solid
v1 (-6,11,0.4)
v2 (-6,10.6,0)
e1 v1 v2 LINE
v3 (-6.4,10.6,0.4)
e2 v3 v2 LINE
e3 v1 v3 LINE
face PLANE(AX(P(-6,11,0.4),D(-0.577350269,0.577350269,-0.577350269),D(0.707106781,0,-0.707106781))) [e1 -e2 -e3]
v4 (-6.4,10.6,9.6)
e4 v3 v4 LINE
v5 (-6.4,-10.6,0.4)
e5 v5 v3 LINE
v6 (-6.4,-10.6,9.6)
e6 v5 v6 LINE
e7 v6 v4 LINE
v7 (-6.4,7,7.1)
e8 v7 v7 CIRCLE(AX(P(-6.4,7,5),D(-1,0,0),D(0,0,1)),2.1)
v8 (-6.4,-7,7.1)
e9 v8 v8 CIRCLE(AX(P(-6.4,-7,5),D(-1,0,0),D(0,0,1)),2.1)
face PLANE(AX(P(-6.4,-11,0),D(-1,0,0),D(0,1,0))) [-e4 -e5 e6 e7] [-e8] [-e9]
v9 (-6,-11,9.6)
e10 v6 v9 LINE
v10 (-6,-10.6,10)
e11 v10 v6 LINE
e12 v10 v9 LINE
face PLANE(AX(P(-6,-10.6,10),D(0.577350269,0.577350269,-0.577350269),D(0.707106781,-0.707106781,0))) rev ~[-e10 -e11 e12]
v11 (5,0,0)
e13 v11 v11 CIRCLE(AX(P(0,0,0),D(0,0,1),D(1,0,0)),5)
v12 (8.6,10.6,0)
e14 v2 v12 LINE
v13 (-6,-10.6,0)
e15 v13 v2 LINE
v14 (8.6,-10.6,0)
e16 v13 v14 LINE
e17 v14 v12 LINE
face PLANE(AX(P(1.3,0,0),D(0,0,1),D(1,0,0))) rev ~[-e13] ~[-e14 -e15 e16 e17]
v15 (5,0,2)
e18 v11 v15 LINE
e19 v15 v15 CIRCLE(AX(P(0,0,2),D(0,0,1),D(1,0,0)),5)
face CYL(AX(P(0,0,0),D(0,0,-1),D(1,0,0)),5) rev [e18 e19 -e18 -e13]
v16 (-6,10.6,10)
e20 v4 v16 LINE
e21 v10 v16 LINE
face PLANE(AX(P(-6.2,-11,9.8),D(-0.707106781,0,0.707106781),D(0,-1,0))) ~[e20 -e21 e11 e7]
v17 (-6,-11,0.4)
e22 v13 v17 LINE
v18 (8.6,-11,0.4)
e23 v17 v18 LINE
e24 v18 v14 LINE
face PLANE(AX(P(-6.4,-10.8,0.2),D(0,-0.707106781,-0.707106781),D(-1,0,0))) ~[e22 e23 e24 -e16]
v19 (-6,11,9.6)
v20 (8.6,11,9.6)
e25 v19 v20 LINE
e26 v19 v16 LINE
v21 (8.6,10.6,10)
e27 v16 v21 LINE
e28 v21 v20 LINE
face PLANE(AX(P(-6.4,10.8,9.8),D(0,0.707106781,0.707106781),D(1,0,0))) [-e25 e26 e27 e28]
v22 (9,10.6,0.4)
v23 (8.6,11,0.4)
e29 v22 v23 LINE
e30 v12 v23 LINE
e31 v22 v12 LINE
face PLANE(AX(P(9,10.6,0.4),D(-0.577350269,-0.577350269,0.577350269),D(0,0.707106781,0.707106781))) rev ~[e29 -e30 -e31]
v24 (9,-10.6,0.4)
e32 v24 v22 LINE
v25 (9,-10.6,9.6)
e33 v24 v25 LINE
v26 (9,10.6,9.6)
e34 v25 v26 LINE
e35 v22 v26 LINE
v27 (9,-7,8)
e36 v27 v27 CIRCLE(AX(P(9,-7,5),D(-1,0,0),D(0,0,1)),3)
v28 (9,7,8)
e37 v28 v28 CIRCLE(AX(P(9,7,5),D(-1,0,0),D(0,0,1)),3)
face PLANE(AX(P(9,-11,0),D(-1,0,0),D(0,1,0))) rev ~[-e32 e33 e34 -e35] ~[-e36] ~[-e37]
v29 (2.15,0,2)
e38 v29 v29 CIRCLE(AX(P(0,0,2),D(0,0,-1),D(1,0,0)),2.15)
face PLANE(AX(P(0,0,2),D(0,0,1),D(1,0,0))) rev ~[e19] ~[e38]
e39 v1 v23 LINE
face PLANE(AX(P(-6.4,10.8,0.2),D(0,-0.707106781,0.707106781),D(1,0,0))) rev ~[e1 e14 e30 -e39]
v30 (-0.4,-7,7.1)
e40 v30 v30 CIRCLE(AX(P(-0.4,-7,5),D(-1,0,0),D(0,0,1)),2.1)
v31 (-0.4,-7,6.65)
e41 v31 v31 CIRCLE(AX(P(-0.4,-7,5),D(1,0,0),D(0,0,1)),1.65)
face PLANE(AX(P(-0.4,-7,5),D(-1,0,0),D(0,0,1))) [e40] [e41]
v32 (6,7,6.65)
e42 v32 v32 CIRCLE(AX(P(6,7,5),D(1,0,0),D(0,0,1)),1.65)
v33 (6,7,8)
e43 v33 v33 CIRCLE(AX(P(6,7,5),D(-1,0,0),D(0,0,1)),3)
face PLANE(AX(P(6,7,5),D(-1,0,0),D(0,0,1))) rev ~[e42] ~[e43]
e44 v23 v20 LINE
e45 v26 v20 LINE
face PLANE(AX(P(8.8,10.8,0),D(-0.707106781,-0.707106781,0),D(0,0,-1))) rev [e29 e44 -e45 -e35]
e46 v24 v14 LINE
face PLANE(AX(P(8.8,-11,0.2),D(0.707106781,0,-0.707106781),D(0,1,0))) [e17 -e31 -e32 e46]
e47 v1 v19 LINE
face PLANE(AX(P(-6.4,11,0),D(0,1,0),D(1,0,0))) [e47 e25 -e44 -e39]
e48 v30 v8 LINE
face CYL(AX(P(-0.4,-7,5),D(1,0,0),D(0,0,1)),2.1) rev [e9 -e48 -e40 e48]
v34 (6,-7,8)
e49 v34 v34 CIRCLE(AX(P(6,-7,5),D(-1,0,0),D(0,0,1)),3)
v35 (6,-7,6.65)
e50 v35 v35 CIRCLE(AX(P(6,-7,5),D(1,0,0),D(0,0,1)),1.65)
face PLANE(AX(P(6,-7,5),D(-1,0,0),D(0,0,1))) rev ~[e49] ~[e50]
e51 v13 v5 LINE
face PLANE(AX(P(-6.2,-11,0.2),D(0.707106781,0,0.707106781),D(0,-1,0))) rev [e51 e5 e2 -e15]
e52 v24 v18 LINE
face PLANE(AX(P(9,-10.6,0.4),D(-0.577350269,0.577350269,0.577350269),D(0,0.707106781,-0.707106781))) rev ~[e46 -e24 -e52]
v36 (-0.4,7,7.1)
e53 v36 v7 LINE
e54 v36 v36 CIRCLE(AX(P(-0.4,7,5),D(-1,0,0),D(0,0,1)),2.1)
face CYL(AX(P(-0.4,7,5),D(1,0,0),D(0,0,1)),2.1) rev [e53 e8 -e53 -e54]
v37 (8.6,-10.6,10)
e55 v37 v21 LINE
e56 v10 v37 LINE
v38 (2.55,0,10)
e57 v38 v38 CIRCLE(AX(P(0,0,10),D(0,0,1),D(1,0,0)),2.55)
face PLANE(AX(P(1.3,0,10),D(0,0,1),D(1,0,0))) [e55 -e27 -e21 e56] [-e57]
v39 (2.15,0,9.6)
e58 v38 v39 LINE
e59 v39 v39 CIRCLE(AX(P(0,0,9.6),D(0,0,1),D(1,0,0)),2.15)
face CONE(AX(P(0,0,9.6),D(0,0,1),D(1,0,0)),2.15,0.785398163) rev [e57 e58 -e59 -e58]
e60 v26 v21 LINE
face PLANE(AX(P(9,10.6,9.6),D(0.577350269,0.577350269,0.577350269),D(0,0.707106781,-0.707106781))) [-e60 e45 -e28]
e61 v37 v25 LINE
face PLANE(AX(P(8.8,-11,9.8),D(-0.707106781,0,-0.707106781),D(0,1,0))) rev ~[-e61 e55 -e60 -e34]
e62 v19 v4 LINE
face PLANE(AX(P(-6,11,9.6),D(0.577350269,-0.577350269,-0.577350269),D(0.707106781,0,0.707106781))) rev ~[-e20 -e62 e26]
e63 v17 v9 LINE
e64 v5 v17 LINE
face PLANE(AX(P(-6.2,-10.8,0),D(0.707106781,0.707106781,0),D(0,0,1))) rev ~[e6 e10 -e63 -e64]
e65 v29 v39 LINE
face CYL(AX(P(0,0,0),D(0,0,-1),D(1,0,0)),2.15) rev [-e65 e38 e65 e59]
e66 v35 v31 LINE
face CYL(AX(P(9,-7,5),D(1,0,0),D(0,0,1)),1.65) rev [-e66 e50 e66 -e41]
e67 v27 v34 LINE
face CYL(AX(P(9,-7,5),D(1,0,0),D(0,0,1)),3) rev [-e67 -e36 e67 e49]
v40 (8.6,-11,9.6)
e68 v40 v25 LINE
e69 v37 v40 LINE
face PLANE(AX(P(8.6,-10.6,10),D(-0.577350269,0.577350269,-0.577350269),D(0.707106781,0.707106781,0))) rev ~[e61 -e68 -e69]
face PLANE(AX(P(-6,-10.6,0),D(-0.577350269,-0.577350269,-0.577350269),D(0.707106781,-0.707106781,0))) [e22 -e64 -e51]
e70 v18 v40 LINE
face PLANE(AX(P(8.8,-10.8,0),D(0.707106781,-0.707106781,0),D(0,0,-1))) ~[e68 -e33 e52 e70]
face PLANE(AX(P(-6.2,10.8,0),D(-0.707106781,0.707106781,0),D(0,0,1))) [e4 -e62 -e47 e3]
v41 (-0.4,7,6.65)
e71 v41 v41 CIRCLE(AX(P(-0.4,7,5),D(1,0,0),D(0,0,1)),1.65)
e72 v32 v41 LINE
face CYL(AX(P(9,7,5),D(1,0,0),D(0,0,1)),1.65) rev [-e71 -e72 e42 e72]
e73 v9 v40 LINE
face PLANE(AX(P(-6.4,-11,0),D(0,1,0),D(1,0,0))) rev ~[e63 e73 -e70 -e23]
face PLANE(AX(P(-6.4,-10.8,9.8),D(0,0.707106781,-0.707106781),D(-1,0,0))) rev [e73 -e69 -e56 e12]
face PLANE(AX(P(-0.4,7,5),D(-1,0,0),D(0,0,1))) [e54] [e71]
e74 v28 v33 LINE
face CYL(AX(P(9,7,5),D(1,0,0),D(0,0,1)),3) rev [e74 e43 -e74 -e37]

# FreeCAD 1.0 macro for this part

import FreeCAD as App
import Part
import Sketcher

V = App.Vector
Q = App.Units.Quantity


def edges_at(feature, points):
    """Names of the edges that pass closest to the given points."""
    edges = feature.Shape.Edges
    near = lambda p: min(range(len(edges)), key=lambda i: edges[i].distToShape(Part.Vertex(*p))[0])
    return sorted({f"Edge{near(p) + 1}" for p in points})


def add_polygon(sketch, points):
    """Adds a closed chain of lines whose ends are joined by coincident constraints."""
    first, n = sketch.GeometryCount, len(points)
    for a, b in zip(points, points[1:] + points[:1]):
        sketch.addGeometry(Part.LineSegment(App.Vector(*a, 0), App.Vector(*b, 0)), False)
    for i in range(n):
        sketch.addConstraint(Sketcher.Constraint("Coincident", first + i, 2, first + (i + 1) % n, 1))

doc = App.newDocument("Part")
body = doc.addObject("PartDesign::Body", "Body")

# Sketch on XY plane
sketch1 = body.newObject("Sketcher::SketchObject", "Sketch")
sketch1.AttachmentSupport = (doc.getObject("XY_Plane"), [""])
sketch1.MapMode = "FlatFace"
sketch1.addGeometry(Part.Circle(V(0, 0, 0), V(0, 0, 1), 5), False)
sketch1.addConstraint([
    Sketcher.Constraint("Coincident", 0, 3, -1, 1),
    Sketcher.Constraint("Diameter", 0, Q("10 mm")),
])
pad1 = body.newObject("PartDesign::Pad", "Pad")
pad1.Profile = sketch1
pad1.Length = 2
body2 = doc.addObject("PartDesign::Body", "Body001")

# Sketch on XY plane
sketch2 = body2.newObject("Sketcher::SketchObject", "Sketch001")
sketch2.AttachmentSupport = (doc.getObject("XY_Plane001"), [""])
sketch2.MapMode = "FlatFace"
sketch2.addGeometry(Part.Circle(V(0, 0, 0), V(0, 0, 1), 2.15), False)
sketch2.addConstraint([
    Sketcher.Constraint("Coincident", 0, 3, -1, 1),
    Sketcher.Constraint("Diameter", 0, Q("4.3 mm")),
])
pad2 = body2.newObject("PartDesign::Pad", "Pad001")
pad2.Profile = sketch2
pad2.Length = 10
body3 = doc.addObject("PartDesign::Body", "Body002")

# Sketch on YZ plane
sketch3 = body3.newObject("Sketcher::SketchObject", "Sketch002")
sketch3.AttachmentSupport = (doc.getObject("YZ_Plane002"), [""])
sketch3.MapMode = "FlatFace"
sketch3.AttachmentOffset = App.Placement(V(0, 0, 9), App.Rotation())
sketch3.addGeometry(Part.Circle(V(7, 5, 0), V(0, 0, 1), 2.1), False)
sketch3.addConstraint([
    Sketcher.Constraint("Diameter", 0, Q("4.2 mm")),
    Sketcher.Constraint("DistanceX", -1, 1, 0, 3, Q("7 mm")),
    Sketcher.Constraint("DistanceY", -1, 1, 0, 3, Q("5 mm")),
])
pad3 = body3.newObject("PartDesign::Pad", "Pad002")
pad3.Profile = sketch3
pad3.Length = 6
pad3.Reversed = True
body4 = doc.addObject("PartDesign::Body", "Body003")
body4.AllowCompound = True

# Sketch on YZ plane
sketch4 = body4.newObject("Sketcher::SketchObject", "Sketch003")
sketch4.AttachmentSupport = (doc.getObject("YZ_Plane003"), [""])
sketch4.MapMode = "FlatFace"
sketch4.AttachmentOffset = App.Placement(V(0, 0, 9), App.Rotation())
sketch4.addGeometry(Part.Circle(V(-7, 5, 0), V(0, 0, 1), 2.1), False)
sketch4.addConstraint([
    Sketcher.Constraint("Diameter", 0, Q("4.2 mm")),
    Sketcher.Constraint("DistanceX", 0, 3, -1, 1, Q("7 mm")),
    Sketcher.Constraint("DistanceY", -1, 1, 0, 3, Q("5 mm")),
])
pad4 = body4.newObject("PartDesign::Pad", "Pad003")
pad4.Profile = sketch4
pad4.Length = 6
pad4.Reversed = True
doc.recompute()

boolean = body4.newObject("PartDesign::Boolean", "Boolean")
boolean.Type = "Fuse"
boolean.addObjects([body3])
body5 = doc.addObject("PartDesign::Body", "Body004")
body5.AllowCompound = True
doc.recompute()

body4.Placement = App.Placement(V(-9.4, 0, 0), App.Rotation(V(0, 0, 1), 0))
boolean2 = body5.newObject("PartDesign::Boolean", "Boolean001")
boolean2.Type = "Fuse"
boolean2.addObjects([body4])
body6 = doc.addObject("PartDesign::Body", "Body005")

# Sketch on YZ plane
sketch5 = body6.newObject("Sketcher::SketchObject", "Sketch004")
sketch5.AttachmentSupport = (doc.getObject("YZ_Plane005"), [""])
sketch5.MapMode = "FlatFace"
sketch5.AttachmentOffset = App.Placement(V(0, 0, 9), App.Rotation())
sketch5.addGeometry(Part.Circle(V(7, 5, 0), V(0, 0, 1), 3), False)
sketch5.addConstraint([
    Sketcher.Constraint("Diameter", 0, Q("6 mm")),
    Sketcher.Constraint("DistanceX", -1, 1, 0, 3, Q("7 mm")),
    Sketcher.Constraint("DistanceY", -1, 1, 0, 3, Q("5 mm")),
])
pad5 = body6.newObject("PartDesign::Pad", "Pad004")
pad5.Profile = sketch5
pad5.Length = 3
pad5.Reversed = True
body7 = doc.addObject("PartDesign::Body", "Body006")
body7.AllowCompound = True

# Sketch on YZ plane
sketch6 = body7.newObject("Sketcher::SketchObject", "Sketch005")
sketch6.AttachmentSupport = (doc.getObject("YZ_Plane006"), [""])
sketch6.MapMode = "FlatFace"
sketch6.AttachmentOffset = App.Placement(V(0, 0, 9), App.Rotation())
sketch6.addGeometry(Part.Circle(V(-7, 5, 0), V(0, 0, 1), 3), False)
sketch6.addConstraint([
    Sketcher.Constraint("Diameter", 0, Q("6 mm")),
    Sketcher.Constraint("DistanceX", 0, 3, -1, 1, Q("7 mm")),
    Sketcher.Constraint("DistanceY", -1, 1, 0, 3, Q("5 mm")),
])
pad6 = body7.newObject("PartDesign::Pad", "Pad005")
pad6.Profile = sketch6
pad6.Length = 3
pad6.Reversed = True
doc.recompute()

boolean3 = body7.newObject("PartDesign::Boolean", "Boolean002")
boolean3.Type = "Fuse"
boolean3.addObjects([body6])
body8 = doc.addObject("PartDesign::Body", "Body007")

# Sketch on YZ plane
sketch7 = body8.newObject("Sketcher::SketchObject", "Sketch006")
sketch7.AttachmentSupport = (doc.getObject("YZ_Plane007"), [""])
sketch7.MapMode = "FlatFace"
sketch7.AttachmentOffset = App.Placement(V(0, 0, 9), App.Rotation())
sketch7.addGeometry(Part.Circle(V(-7, 5, 0), V(0, 0, 1), 1.65), False)
sketch7.addConstraint([
    Sketcher.Constraint("Diameter", 0, Q("3.3 mm")),
    Sketcher.Constraint("DistanceX", 0, 3, -1, 1, Q("7 mm")),
    Sketcher.Constraint("DistanceY", -1, 1, 0, 3, Q("5 mm")),
])
pad7 = body8.newObject("PartDesign::Pad", "Pad006")
pad7.Profile = sketch7
pad7.Length = 16
pad7.Reversed = True
body9 = doc.addObject("PartDesign::Body", "Body008")
body9.AllowCompound = True

# Sketch on YZ plane
sketch8 = body9.newObject("Sketcher::SketchObject", "Sketch007")
sketch8.AttachmentSupport = (doc.getObject("YZ_Plane008"), [""])
sketch8.MapMode = "FlatFace"
sketch8.AttachmentOffset = App.Placement(V(0, 0, 9), App.Rotation())
sketch8.addGeometry(Part.Circle(V(7, 5, 0), V(0, 0, 1), 1.65), False)
sketch8.addConstraint([
    Sketcher.Constraint("Diameter", 0, Q("3.3 mm")),
    Sketcher.Constraint("DistanceX", -1, 1, 0, 3, Q("7 mm")),
    Sketcher.Constraint("DistanceY", -1, 1, 0, 3, Q("5 mm")),
])
pad8 = body9.newObject("PartDesign::Pad", "Pad007")
pad8.Profile = sketch8
pad8.Length = 16
pad8.Reversed = True
doc.recompute()

boolean4 = body9.newObject("PartDesign::Boolean", "Boolean003")
boolean4.Type = "Fuse"
boolean4.addObjects([body8])
body10 = doc.addObject("PartDesign::Body", "Body009")

# Sketch on XY plane
sketch9 = body10.newObject("Sketcher::SketchObject", "Sketch008")
sketch9.AttachmentSupport = (doc.getObject("XY_Plane009"), [""])
sketch9.MapMode = "FlatFace"
add_polygon(sketch9, [(-6.4, 11), (-6.4, -11), (9, -11), (9, 11)])  # lines 0-3
sketch9.addConstraint([
    Sketcher.Constraint("Vertical", 0),
    Sketcher.Constraint("Horizontal", 1),
    Sketcher.Constraint("Vertical", 2),
    Sketcher.Constraint("Horizontal", 3),
    Sketcher.Constraint("DistanceY", 0, 2, 0, 1, Q("22 mm")),
    Sketcher.Constraint("DistanceX", 1, 1, 1, 2, Q("15.4 mm")),
    Sketcher.Constraint("DistanceY", 0, 2, -1, 1, Q("11 mm")),
    Sketcher.Constraint("DistanceX", -1, 1, 1, 2, Q("9 mm")),
])
pad9 = body10.newObject("PartDesign::Pad", "Pad008")
pad9.Profile = sketch9
pad9.Length = 10
doc.recompute()

boolean5 = body10.newObject("PartDesign::Boolean", "Boolean004")
boolean5.Type = "Cut"
boolean5.addObjects([body9])
doc.recompute()

boolean6 = body10.newObject("PartDesign::Boolean", "Boolean005")
boolean6.Type = "Cut"
boolean6.addObjects([body7])
doc.recompute()

boolean7 = body10.newObject("PartDesign::Boolean", "Boolean006")
boolean7.Type = "Cut"
boolean7.addObjects([body5])
doc.recompute()

boolean8 = body10.newObject("PartDesign::Boolean", "Boolean007")
boolean8.Type = "Cut"
boolean8.addObjects([body2])
doc.recompute()

boolean9 = body10.newObject("PartDesign::Boolean", "Boolean008")
boolean9.Type = "Cut"
boolean9.addObjects([body])
doc.recompute()

chamfer = body10.newObject("PartDesign::Chamfer", "Chamfer")
chamfer.Base = (boolean9, edges_at(boolean9, [
    (-6.4, -11, 5),
    (-6.4, 0, 10),
    (-6.4, 0, 0),
    (-6.4, 11, 5),
    (1.3, -11, 0),
    (9, -11, 5),
    (1.3, -11, 10),
    (1.3, 11, 10),
    (9, 0, 10),
    (-2.15, 0, 10),
    (1.3, 11, 0),
    (9, 0, 0),
    (9, 11, 5),
]))
chamfer.Size = 0.4

doc.recompute()
